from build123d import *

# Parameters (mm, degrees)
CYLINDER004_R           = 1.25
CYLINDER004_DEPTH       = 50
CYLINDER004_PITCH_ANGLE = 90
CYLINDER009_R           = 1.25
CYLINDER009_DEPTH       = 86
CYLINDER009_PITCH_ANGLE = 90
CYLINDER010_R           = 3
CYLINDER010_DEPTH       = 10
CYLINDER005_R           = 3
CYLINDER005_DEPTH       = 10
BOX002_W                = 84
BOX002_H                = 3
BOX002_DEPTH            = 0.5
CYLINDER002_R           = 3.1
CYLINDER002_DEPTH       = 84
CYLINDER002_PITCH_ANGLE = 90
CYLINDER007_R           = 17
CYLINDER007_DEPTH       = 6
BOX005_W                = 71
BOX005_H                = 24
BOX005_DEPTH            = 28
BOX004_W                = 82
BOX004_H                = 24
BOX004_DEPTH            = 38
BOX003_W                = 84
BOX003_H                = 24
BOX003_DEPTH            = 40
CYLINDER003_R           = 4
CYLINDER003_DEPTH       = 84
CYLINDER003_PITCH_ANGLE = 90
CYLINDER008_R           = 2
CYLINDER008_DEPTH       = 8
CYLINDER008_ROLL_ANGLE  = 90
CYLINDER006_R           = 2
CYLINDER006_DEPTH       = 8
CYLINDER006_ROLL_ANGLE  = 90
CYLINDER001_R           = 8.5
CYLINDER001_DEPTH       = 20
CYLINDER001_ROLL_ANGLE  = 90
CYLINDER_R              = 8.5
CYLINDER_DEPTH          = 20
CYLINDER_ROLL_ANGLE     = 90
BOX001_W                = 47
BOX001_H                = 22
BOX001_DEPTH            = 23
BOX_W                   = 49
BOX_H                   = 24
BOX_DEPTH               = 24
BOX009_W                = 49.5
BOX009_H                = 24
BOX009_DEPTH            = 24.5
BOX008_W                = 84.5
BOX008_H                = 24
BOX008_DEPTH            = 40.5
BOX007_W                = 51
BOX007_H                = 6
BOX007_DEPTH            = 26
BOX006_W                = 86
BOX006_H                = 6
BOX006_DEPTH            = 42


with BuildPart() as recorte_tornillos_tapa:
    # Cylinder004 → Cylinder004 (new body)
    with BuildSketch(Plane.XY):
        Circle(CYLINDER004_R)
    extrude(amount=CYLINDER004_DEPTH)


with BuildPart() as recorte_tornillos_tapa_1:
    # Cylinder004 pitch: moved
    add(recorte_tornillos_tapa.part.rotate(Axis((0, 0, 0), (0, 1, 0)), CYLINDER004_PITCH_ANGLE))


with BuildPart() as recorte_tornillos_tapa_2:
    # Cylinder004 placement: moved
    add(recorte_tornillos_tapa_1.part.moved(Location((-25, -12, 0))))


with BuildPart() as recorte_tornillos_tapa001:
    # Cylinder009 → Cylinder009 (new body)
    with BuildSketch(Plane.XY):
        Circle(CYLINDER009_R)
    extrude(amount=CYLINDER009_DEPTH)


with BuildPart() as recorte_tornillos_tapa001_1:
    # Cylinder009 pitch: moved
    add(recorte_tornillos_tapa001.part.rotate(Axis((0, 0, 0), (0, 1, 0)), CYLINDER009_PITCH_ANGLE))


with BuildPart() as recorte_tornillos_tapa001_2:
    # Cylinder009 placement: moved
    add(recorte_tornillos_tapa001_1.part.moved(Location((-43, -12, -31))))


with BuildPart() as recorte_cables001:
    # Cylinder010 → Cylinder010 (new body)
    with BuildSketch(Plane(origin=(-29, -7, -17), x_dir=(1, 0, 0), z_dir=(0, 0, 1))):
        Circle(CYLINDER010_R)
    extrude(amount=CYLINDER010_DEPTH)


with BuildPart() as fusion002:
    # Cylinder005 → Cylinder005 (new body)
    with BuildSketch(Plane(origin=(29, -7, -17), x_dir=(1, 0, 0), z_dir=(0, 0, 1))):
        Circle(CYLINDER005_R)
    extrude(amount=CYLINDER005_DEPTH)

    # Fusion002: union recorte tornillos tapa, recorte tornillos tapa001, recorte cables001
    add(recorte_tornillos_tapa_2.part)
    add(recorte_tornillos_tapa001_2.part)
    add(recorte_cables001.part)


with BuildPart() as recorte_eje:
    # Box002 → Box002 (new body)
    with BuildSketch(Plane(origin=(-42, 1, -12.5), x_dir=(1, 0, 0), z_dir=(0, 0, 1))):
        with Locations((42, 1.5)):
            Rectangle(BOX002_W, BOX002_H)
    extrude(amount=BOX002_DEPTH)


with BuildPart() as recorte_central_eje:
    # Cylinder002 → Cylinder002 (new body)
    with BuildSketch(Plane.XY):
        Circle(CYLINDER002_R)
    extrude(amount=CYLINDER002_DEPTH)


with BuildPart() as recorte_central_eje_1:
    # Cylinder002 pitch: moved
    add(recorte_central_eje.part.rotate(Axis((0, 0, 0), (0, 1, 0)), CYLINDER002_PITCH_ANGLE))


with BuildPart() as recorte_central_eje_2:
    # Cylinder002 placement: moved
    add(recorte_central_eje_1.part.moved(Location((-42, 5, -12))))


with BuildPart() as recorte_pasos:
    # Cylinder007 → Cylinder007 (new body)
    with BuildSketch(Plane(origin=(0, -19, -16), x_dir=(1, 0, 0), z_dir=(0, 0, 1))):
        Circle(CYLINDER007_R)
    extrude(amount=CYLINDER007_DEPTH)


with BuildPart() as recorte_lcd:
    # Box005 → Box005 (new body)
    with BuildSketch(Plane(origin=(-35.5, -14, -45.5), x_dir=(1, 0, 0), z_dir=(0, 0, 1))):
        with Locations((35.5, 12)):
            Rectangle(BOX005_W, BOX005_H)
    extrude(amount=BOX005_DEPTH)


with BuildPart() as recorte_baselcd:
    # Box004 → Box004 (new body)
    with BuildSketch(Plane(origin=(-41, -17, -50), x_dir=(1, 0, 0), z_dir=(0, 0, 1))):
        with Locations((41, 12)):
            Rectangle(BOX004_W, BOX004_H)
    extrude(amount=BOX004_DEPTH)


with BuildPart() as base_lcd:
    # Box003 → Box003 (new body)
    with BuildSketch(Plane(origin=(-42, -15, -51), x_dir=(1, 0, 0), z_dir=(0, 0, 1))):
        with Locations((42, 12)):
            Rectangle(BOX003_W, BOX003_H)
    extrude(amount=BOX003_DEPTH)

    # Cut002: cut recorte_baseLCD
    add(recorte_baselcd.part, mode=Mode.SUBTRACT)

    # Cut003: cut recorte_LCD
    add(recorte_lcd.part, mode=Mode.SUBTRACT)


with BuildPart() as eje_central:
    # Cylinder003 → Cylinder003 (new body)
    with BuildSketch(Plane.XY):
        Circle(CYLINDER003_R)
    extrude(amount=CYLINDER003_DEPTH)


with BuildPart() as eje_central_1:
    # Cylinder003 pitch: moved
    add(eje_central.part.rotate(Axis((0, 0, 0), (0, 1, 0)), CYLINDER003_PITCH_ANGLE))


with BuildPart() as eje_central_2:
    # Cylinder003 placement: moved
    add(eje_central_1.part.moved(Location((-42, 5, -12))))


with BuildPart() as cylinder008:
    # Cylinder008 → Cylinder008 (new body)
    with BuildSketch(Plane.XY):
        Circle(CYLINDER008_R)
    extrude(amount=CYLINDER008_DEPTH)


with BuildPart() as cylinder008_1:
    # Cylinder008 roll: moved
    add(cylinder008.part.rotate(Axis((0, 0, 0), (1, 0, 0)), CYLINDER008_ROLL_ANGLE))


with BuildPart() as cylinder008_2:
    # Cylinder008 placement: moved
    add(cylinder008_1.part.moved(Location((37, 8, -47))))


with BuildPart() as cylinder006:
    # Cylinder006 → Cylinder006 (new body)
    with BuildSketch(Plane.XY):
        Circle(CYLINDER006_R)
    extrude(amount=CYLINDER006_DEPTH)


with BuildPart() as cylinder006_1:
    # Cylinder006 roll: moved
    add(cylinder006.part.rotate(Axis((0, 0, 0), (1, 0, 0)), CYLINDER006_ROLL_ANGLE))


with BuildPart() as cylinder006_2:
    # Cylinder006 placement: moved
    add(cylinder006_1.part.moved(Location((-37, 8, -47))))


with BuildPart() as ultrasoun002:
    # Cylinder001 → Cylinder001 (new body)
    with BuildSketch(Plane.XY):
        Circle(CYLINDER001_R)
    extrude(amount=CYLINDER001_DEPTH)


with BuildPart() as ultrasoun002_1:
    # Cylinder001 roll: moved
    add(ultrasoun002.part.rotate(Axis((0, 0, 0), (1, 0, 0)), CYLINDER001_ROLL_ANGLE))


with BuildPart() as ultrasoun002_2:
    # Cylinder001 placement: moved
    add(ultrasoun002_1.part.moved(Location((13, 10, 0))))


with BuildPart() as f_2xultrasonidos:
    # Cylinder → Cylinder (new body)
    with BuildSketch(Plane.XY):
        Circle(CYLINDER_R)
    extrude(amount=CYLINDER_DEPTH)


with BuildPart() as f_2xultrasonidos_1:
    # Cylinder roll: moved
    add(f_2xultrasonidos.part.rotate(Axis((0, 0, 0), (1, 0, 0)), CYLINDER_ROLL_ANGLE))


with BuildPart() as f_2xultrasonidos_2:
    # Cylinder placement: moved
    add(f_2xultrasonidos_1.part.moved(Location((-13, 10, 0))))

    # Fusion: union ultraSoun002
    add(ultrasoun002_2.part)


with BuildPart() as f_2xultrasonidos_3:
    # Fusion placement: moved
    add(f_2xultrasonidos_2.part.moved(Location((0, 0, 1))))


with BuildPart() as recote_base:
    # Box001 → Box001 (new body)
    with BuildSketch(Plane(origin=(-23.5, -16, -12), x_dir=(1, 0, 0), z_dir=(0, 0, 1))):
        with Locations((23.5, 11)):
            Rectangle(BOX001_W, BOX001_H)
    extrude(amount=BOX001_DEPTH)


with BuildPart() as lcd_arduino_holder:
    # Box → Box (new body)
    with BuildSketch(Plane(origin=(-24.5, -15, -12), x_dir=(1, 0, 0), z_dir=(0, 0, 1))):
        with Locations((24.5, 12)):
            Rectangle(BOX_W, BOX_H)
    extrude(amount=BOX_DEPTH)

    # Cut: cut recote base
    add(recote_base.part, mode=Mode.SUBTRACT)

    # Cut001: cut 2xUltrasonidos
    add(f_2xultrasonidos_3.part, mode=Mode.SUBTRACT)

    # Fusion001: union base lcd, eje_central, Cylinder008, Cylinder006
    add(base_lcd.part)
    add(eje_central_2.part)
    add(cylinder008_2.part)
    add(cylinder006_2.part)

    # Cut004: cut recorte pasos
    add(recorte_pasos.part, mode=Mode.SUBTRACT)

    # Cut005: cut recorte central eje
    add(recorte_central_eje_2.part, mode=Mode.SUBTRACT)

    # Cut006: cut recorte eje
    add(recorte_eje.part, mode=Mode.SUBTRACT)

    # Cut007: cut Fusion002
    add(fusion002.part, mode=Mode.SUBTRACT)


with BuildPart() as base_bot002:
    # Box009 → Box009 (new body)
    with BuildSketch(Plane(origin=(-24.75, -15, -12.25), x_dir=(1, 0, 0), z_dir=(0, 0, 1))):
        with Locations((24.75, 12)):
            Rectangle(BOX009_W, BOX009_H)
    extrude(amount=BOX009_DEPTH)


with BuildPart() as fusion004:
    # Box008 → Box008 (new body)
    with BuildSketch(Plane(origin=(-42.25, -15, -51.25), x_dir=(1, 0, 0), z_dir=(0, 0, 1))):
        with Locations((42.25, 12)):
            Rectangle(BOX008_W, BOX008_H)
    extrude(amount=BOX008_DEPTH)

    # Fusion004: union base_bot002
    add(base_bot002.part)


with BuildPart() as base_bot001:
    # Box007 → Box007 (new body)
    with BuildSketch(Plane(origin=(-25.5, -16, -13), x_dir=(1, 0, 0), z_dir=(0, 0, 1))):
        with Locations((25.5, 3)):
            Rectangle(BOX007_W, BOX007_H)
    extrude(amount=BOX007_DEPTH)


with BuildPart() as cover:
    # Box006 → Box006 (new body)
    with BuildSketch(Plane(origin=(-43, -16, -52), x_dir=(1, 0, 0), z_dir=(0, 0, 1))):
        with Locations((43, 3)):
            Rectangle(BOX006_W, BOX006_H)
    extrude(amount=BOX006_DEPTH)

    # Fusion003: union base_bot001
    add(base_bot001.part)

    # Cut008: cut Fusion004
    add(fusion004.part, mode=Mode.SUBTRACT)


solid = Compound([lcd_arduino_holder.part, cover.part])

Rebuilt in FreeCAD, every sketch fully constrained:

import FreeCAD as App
import Part
import Sketcher

doc = App.newDocument("Part")
body = doc.addObject("PartDesign::Body", "Body")

sketch1 = body.newObject("Sketcher::SketchObject", "Sketch")
sketch1.AttachmentSupport = (doc.getObject("XY_Plane"), [""])
sketch1.MapMode = "FlatFace"
sketch1.addGeometry(Part.Circle(App.Vector(0, 0, 0), App.Vector(0, 0, 1), 1.25), False)
sketch1.addConstraint(Sketcher.Constraint("Coincident", 0, 3, -1, 1))
sketch1.addConstraint(Sketcher.Constraint("Diameter", 0, 2.5))
pad1 = body.newObject("PartDesign::Pad", "Pad")
pad1.Profile = sketch1
pad1.Length = 50
body2 = doc.addObject("PartDesign::Body", "Body001")
doc.recompute()

body.Placement = App.Placement(App.Vector(0, 0, 0), App.Rotation(App.Vector(0, 1, 0), 90))
boolean = body2.newObject("PartDesign::Boolean", "Boolean")
boolean.Type = "Fuse"
boolean.addObjects([body])
body3 = doc.addObject("PartDesign::Body", "Body002")
doc.recompute()

body2.Placement = App.Placement(App.Vector(-25, -12, 0), App.Rotation(App.Vector(0, 0, 1), 0))
boolean2 = body3.newObject("PartDesign::Boolean", "Boolean001")
boolean2.Type = "Fuse"
boolean2.addObjects([body2])
body4 = doc.addObject("PartDesign::Body", "Body003")

sketch2 = body4.newObject("Sketcher::SketchObject", "Sketch001")
sketch2.AttachmentSupport = (doc.getObject("XY_Plane003"), [""])
sketch2.MapMode = "FlatFace"
sketch2.addGeometry(Part.Circle(App.Vector(0, 0, 0), App.Vector(0, 0, 1), 1.25), False)
sketch2.addConstraint(Sketcher.Constraint("Coincident", 0, 3, -1, 1))
sketch2.addConstraint(Sketcher.Constraint("Diameter", 0, 2.5))
pad2 = body4.newObject("PartDesign::Pad", "Pad001")
pad2.Profile = sketch2
pad2.Length = 86
body5 = doc.addObject("PartDesign::Body", "Body004")
doc.recompute()

body4.Placement = App.Placement(App.Vector(0, 0, 0), App.Rotation(App.Vector(0, 1, 0), 90))
boolean3 = body5.newObject("PartDesign::Boolean", "Boolean002")
boolean3.Type = "Fuse"
boolean3.addObjects([body4])
body6 = doc.addObject("PartDesign::Body", "Body005")
doc.recompute()

body5.Placement = App.Placement(App.Vector(-43, -12, -31), App.Rotation(App.Vector(0, 0, 1), 0))
boolean4 = body6.newObject("PartDesign::Boolean", "Boolean003")
boolean4.Type = "Fuse"
boolean4.addObjects([body5])
body7 = doc.addObject("PartDesign::Body", "Body006")

sketch3 = body7.newObject("Sketcher::SketchObject", "Sketch002")
sketch3.AttachmentSupport = (doc.getObject("XY_Plane006"), [""])
sketch3.MapMode = "FlatFace"
sketch3.AttachmentOffset = App.Placement(App.Vector(0, 0, -17), App.Rotation())
sketch3.addGeometry(Part.Circle(App.Vector(-29, -7, 0), App.Vector(0, 0, 1), 3), False)
sketch3.addConstraint(Sketcher.Constraint("Diameter", 0, 6.0))
sketch3.addConstraint(Sketcher.Constraint("DistanceX", 0, 3, -1, 1, 29.0))
sketch3.addConstraint(Sketcher.Constraint("DistanceY", 0, 3, -1, 1, 7.0))
pad3 = body7.newObject("PartDesign::Pad", "Pad002")
pad3.Profile = sketch3
pad3.Length = 10
body8 = doc.addObject("PartDesign::Body", "Body007")
body8.AllowCompound = True

sketch4 = body8.newObject("Sketcher::SketchObject", "Sketch003")
sketch4.AttachmentSupport = (doc.getObject("XY_Plane007"), [""])
sketch4.MapMode = "FlatFace"
sketch4.AttachmentOffset = App.Placement(App.Vector(0, 0, -17), App.Rotation())
sketch4.addGeometry(Part.Circle(App.Vector(29, -7, 0), App.Vector(0, 0, 1), 3), False)
sketch4.addConstraint(Sketcher.Constraint("Diameter", 0, 6.0))
sketch4.addConstraint(Sketcher.Constraint("DistanceX", -1, 1, 0, 3, 29.0))
sketch4.addConstraint(Sketcher.Constraint("DistanceY", 0, 3, -1, 1, 7.0))
pad4 = body8.newObject("PartDesign::Pad", "Pad003")
pad4.Profile = sketch4
pad4.Length = 10
doc.recompute()

boolean5 = body8.newObject("PartDesign::Boolean", "Boolean004")
boolean5.Type = "Fuse"
boolean5.addObjects([body3])
doc.recompute()

boolean6 = body8.newObject("PartDesign::Boolean", "Boolean005")
boolean6.Type = "Fuse"
boolean6.addObjects([body6])
doc.recompute()

boolean7 = body8.newObject("PartDesign::Boolean", "Boolean006")
boolean7.Type = "Fuse"
boolean7.addObjects([body7])
body9 = doc.addObject("PartDesign::Body", "Body008")

sketch5 = body9.newObject("Sketcher::SketchObject", "Sketch004")
sketch5.AttachmentSupport = (doc.getObject("XY_Plane008"), [""])
sketch5.MapMode = "FlatFace"
sketch5.AttachmentOffset = App.Placement(App.Vector(0, 0, -12.5), App.Rotation())
sketch5.addGeometry(Part.LineSegment(App.Vector(-42, 4, 0), App.Vector(-42, 1, 0)), False)
sketch5.addGeometry(Part.LineSegment(App.Vector(-42, 1, 0), App.Vector(42, 1, 0)), False)
sketch5.addGeometry(Part.LineSegment(App.Vector(42, 1, 0), App.Vector(42, 4, 0)), False)
sketch5.addGeometry(Part.LineSegment(App.Vector(42, 4, 0), App.Vector(-42, 4, 0)), False)
sketch5.addConstraint(Sketcher.Constraint("Coincident", 0, 2, 1, 1))
sketch5.addConstraint(Sketcher.Constraint("Coincident", 1, 2, 2, 1))
sketch5.addConstraint(Sketcher.Constraint("Coincident", 2, 2, 3, 1))
sketch5.addConstraint(Sketcher.Constraint("Coincident", 3, 2, 0, 1))
sketch5.addConstraint(Sketcher.Constraint("Vertical", 0))
sketch5.addConstraint(Sketcher.Constraint("Horizontal", 1))
sketch5.addConstraint(Sketcher.Constraint("Vertical", 2))
sketch5.addConstraint(Sketcher.Constraint("Horizontal", 3))
sketch5.addConstraint(Sketcher.Constraint("DistanceX", 1, 1, 1, 2, 84.0))
sketch5.addConstraint(Sketcher.Constraint("DistanceY", 0, 2, 0, 1, 3.0))
sketch5.addConstraint(Sketcher.Constraint("DistanceX", 0, 2, -1, 1, 42.0))
sketch5.addConstraint(Sketcher.Constraint("DistanceY", -1, 1, 0, 2, 1.0))
pad5 = body9.newObject("PartDesign::Pad", "Pad004")
pad5.Profile = sketch5
pad5.Length = 0.5
body10 = doc.addObject("PartDesign::Body", "Body009")

sketch6 = body10.newObject("Sketcher::SketchObject", "Sketch005")
sketch6.AttachmentSupport = (doc.getObject("XY_Plane009"), [""])
sketch6.MapMode = "FlatFace"
sketch6.addGeometry(Part.Circle(App.Vector(0, 0, 0), App.Vector(0, 0, 1), 3.1), False)
sketch6.addConstraint(Sketcher.Constraint("Coincident", 0, 3, -1, 1))
sketch6.addConstraint(Sketcher.Constraint("Diameter", 0, 6.2))
pad6 = body10.newObject("PartDesign::Pad", "Pad005")
pad6.Profile = sketch6
pad6.Length = 84
body11 = doc.addObject("PartDesign::Body", "Body010")
doc.recompute()

body10.Placement = App.Placement(App.Vector(0, 0, 0), App.Rotation(App.Vector(0, 1, 0), 90))
boolean8 = body11.newObject("PartDesign::Boolean", "Boolean007")
boolean8.Type = "Fuse"
boolean8.addObjects([body10])
body12 = doc.addObject("PartDesign::Body", "Body011")
doc.recompute()

body11.Placement = App.Placement(App.Vector(-42, 5, -12), App.Rotation(App.Vector(0, 0, 1), 0))
boolean9 = body12.newObject("PartDesign::Boolean", "Boolean008")
boolean9.Type = "Fuse"
boolean9.addObjects([body11])
body13 = doc.addObject("PartDesign::Body", "Body012")

sketch7 = body13.newObject("Sketcher::SketchObject", "Sketch006")
sketch7.AttachmentSupport = (doc.getObject("XY_Plane012"), [""])
sketch7.MapMode = "FlatFace"
sketch7.AttachmentOffset = App.Placement(App.Vector(0, 0, -16), App.Rotation())
sketch7.addGeometry(Part.Circle(App.Vector(0, -19, 0), App.Vector(0, 0, 1), 17), False)
sketch7.addConstraint(Sketcher.Constraint("PointOnObject", 0, 3, -2))
sketch7.addConstraint(Sketcher.Constraint("Diameter", 0, 34.0))
sketch7.addConstraint(Sketcher.Constraint("DistanceY", 0, 3, -1, 1, 19.0))
pad7 = body13.newObject("PartDesign::Pad", "Pad006")
pad7.Profile = sketch7
pad7.Length = 6
body14 = doc.addObject("PartDesign::Body", "Body013")

sketch8 = body14.newObject("Sketcher::SketchObject", "Sketch007")
sketch8.AttachmentSupport = (doc.getObject("XY_Plane013"), [""])
sketch8.MapMode = "FlatFace"
sketch8.AttachmentOffset = App.Placement(App.Vector(0, 0, -45.5), App.Rotation())
sketch8.addGeometry(Part.LineSegment(App.Vector(-35.5, 10, 0), App.Vector(-35.5, -14, 0)), False)
sketch8.addGeometry(Part.LineSegment(App.Vector(-35.5, -14, 0), App.Vector(35.5, -14, 0)), False)
sketch8.addGeometry(Part.LineSegment(App.Vector(35.5, -14, 0), App.Vector(35.5, 10, 0)), False)
sketch8.addGeometry(Part.LineSegment(App.Vector(35.5, 10, 0), App.Vector(-35.5, 10, 0)), False)
sketch8.addConstraint(Sketcher.Constraint("Coincident", 0, 2, 1, 1))
sketch8.addConstraint(Sketcher.Constraint("Coincident", 1, 2, 2, 1))
sketch8.addConstraint(Sketcher.Constraint("Coincident", 2, 2, 3, 1))
sketch8.addConstraint(Sketcher.Constraint("Coincident", 3, 2, 0, 1))
sketch8.addConstraint(Sketcher.Constraint("Vertical", 0))
sketch8.addConstraint(Sketcher.Constraint("Horizontal", 1))
sketch8.addConstraint(Sketcher.Constraint("Vertical", 2))
sketch8.addConstraint(Sketcher.Constraint("Horizontal", 3))
sketch8.addConstraint(Sketcher.Constraint("DistanceX", 1, 1, 1, 2, 71.0))
sketch8.addConstraint(Sketcher.Constraint("DistanceY", 0, 2, 0, 1, 24.0))
sketch8.addConstraint(Sketcher.Constraint("DistanceY", 0, 2, -1, 1, 14.0))
sketch8.addConstraint(Sketcher.Constraint("DistanceX", 0, 2, -1, 1, 35.5))
pad8 = body14.newObject("PartDesign::Pad", "Pad007")
pad8.Profile = sketch8
pad8.Length = 28
body15 = doc.addObject("PartDesign::Body", "Body014")

sketch9 = body15.newObject("Sketcher::SketchObject", "Sketch008")
sketch9.AttachmentSupport = (doc.getObject("XY_Plane014"), [""])
sketch9.MapMode = "FlatFace"
sketch9.AttachmentOffset = App.Placement(App.Vector(0, 0, -50), App.Rotation())
sketch9.addGeometry(Part.LineSegment(App.Vector(-41, 7, 0), App.Vector(-41, -17, 0)), False)
sketch9.addGeometry(Part.LineSegment(App.Vector(-41, -17, 0), App.Vector(41, -17, 0)), False)
sketch9.addGeometry(Part.LineSegment(App.Vector(41, -17, 0), App.Vector(41, 7, 0)), False)
sketch9.addGeometry(Part.LineSegment(App.Vector(41, 7, 0), App.Vector(-41, 7, 0)), False)
sketch9.addConstraint(Sketcher.Constraint("Coincident", 0, 2, 1, 1))
sketch9.addConstraint(Sketcher.Constraint("Coincident", 1, 2, 2, 1))
sketch9.addConstraint(Sketcher.Constraint("Coincident", 2, 2, 3, 1))
sketch9.addConstraint(Sketcher.Constraint("Coincident", 3, 2, 0, 1))
sketch9.addConstraint(Sketcher.Constraint("Vertical", 0))
sketch9.addConstraint(Sketcher.Constraint("Horizontal", 1))
sketch9.addConstraint(Sketcher.Constraint("Vertical", 2))
sketch9.addConstraint(Sketcher.Constraint("Horizontal", 3))
sketch9.addConstraint(Sketcher.Constraint("DistanceX", 1, 1, 1, 2, 82.0))
sketch9.addConstraint(Sketcher.Constraint("DistanceY", 0, 2, 0, 1, 24.0))
sketch9.addConstraint(Sketcher.Constraint("DistanceX", 0, 2, -1, 1, 41.0))
sketch9.addConstraint(Sketcher.Constraint("DistanceY", 0, 2, -1, 1, 17.0))
pad9 = body15.newObject("PartDesign::Pad", "Pad008")
pad9.Profile = sketch9
pad9.Length = 38
body16 = doc.addObject("PartDesign::Body", "Body015")

sketch10 = body16.newObject("Sketcher::SketchObject", "Sketch009")
sketch10.AttachmentSupport = (doc.getObject("XY_Plane015"), [""])
sketch10.MapMode = "FlatFace"
sketch10.AttachmentOffset = App.Placement(App.Vector(0, 0, -51), App.Rotation())
sketch10.addGeometry(Part.LineSegment(App.Vector(-42, 9, 0), App.Vector(-42, -15, 0)), False)
sketch10.addGeometry(Part.LineSegment(App.Vector(-42, -15, 0), App.Vector(42, -15, 0)), False)
sketch10.addGeometry(Part.LineSegment(App.Vector(42, -15, 0), App.Vector(42, 9, 0)), False)
sketch10.addGeometry(Part.LineSegment(App.Vector(42, 9, 0), App.Vector(-42, 9, 0)), False)
sketch10.addConstraint(Sketcher.Constraint("Coincident", 0, 2, 1, 1))
sketch10.addConstraint(Sketcher.Constraint("Coincident", 1, 2, 2, 1))
sketch10.addConstraint(Sketcher.Constraint("Coincident", 2, 2, 3, 1))
sketch10.addConstraint(Sketcher.Constraint("Coincident", 3, 2, 0, 1))
sketch10.addConstraint(Sketcher.Constraint("Vertical", 0))
sketch10.addConstraint(Sketcher.Constraint("Horizontal", 1))
sketch10.addConstraint(Sketcher.Constraint("Vertical", 2))
sketch10.addConstraint(Sketcher.Constraint("Horizontal", 3))
sketch10.addConstraint(Sketcher.Constraint("DistanceX", 1, 1, 1, 2, 84.0))
sketch10.addConstraint(Sketcher.Constraint("DistanceY", 0, 2, 0, 1, 24.0))
sketch10.addConstraint(Sketcher.Constraint("DistanceX", 0, 2, -1, 1, 42.0))
sketch10.addConstraint(Sketcher.Constraint("DistanceY", 0, 2, -1, 1, 15.0))
pad10 = body16.newObject("PartDesign::Pad", "Pad009")
pad10.Profile = sketch10
pad10.Length = 40
doc.recompute()

boolean10 = body16.newObject("PartDesign::Boolean", "Boolean009")
boolean10.Type = "Cut"
boolean10.addObjects([body15])
doc.recompute()

boolean11 = body16.newObject("PartDesign::Boolean", "Boolean010")
boolean11.Type = "Cut"
boolean11.addObjects([body14])
body17 = doc.addObject("PartDesign::Body", "Body016")

sketch11 = body17.newObject("Sketcher::SketchObject", "Sketch010")
sketch11.AttachmentSupport = (doc.getObject("XY_Plane016"), [""])
sketch11.MapMode = "FlatFace"
sketch11.addGeometry(Part.Circle(App.Vector(0, 0, 0), App.Vector(0, 0, 1), 4), False)
sketch11.addConstraint(Sketcher.Constraint("Coincident", 0, 3, -1, 1))
sketch11.addConstraint(Sketcher.Constraint("Diameter", 0, 8.0))
pad11 = body17.newObject("PartDesign::Pad", "Pad010")
pad11.Profile = sketch11
pad11.Length = 84
body18 = doc.addObject("PartDesign::Body", "Body017")
doc.recompute()

body17.Placement = App.Placement(App.Vector(0, 0, 0), App.Rotation(App.Vector(0, 1, 0), 90))
boolean12 = body18.newObject("PartDesign::Boolean", "Boolean011")
boolean12.Type = "Fuse"
boolean12.addObjects([body17])
body19 = doc.addObject("PartDesign::Body", "Body018")
doc.recompute()

body18.Placement = App.Placement(App.Vector(-42, 5, -12), App.Rotation(App.Vector(0, 0, 1), 0))
boolean13 = body19.newObject("PartDesign::Boolean", "Boolean012")
boolean13.Type = "Fuse"
boolean13.addObjects([body18])
body20 = doc.addObject("PartDesign::Body", "Body019")

sketch12 = body20.newObject("Sketcher::SketchObject", "Sketch011")
sketch12.AttachmentSupport = (doc.getObject("XY_Plane019"), [""])
sketch12.MapMode = "FlatFace"
sketch12.addGeometry(Part.Circle(App.Vector(0, 0, 0), App.Vector(0, 0, 1), 2), False)
sketch12.addConstraint(Sketcher.Constraint("Coincident", 0, 3, -1, 1))
sketch12.addConstraint(Sketcher.Constraint("Diameter", 0, 4.0))
pad12 = body20.newObject("PartDesign::Pad", "Pad011")
pad12.Profile = sketch12
pad12.Length = 8
body21 = doc.addObject("PartDesign::Body", "Body020")
doc.recompute()

body20.Placement = App.Placement(App.Vector(0, 0, 0), App.Rotation(App.Vector(1, 0, 0), 90))
boolean14 = body21.newObject("PartDesign::Boolean", "Boolean013")
boolean14.Type = "Fuse"
boolean14.addObjects([body20])
body22 = doc.addObject("PartDesign::Body", "Body021")
doc.recompute()

body21.Placement = App.Placement(App.Vector(37, 8, -47), App.Rotation(App.Vector(0, 0, 1), 0))
boolean15 = body22.newObject("PartDesign::Boolean", "Boolean014")
boolean15.Type = "Fuse"
boolean15.addObjects([body21])
body23 = doc.addObject("PartDesign::Body", "Body022")

sketch13 = body23.newObject("Sketcher::SketchObject", "Sketch012")
sketch13.AttachmentSupport = (doc.getObject("XY_Plane022"), [""])
sketch13.MapMode = "FlatFace"
sketch13.addGeometry(Part.Circle(App.Vector(0, 0, 0), App.Vector(0, 0, 1), 2), False)
sketch13.addConstraint(Sketcher.Constraint("Coincident", 0, 3, -1, 1))
sketch13.addConstraint(Sketcher.Constraint("Diameter", 0, 4.0))
pad13 = body23.newObject("PartDesign::Pad", "Pad012")
pad13.Profile = sketch13
pad13.Length = 8
body24 = doc.addObject("PartDesign::Body", "Body023")
doc.recompute()

body23.Placement = App.Placement(App.Vector(0, 0, 0), App.Rotation(App.Vector(1, 0, 0), 90))
boolean16 = body24.newObject("PartDesign::Boolean", "Boolean015")
boolean16.Type = "Fuse"
boolean16.addObjects([body23])
body25 = doc.addObject("PartDesign::Body", "Body024")
doc.recompute()

body24.Placement = App.Placement(App.Vector(-37, 8, -47), App.Rotation(App.Vector(0, 0, 1), 0))
boolean17 = body25.newObject("PartDesign::Boolean", "Boolean016")
boolean17.Type = "Fuse"
boolean17.addObjects([body24])
body26 = doc.addObject("PartDesign::Body", "Body025")

sketch14 = body26.newObject("Sketcher::SketchObject", "Sketch013")
sketch14.AttachmentSupport = (doc.getObject("XY_Plane025"), [""])
sketch14.MapMode = "FlatFace"
sketch14.addGeometry(Part.Circle(App.Vector(0, 0, 0), App.Vector(0, 0, 1), 8.5), False)
sketch14.addConstraint(Sketcher.Constraint("Coincident", 0, 3, -1, 1))
sketch14.addConstraint(Sketcher.Constraint("Diameter", 0, 17.0))
pad14 = body26.newObject("PartDesign::Pad", "Pad013")
pad14.Profile = sketch14
pad14.Length = 20
body27 = doc.addObject("PartDesign::Body", "Body026")
doc.recompute()

body26.Placement = App.Placement(App.Vector(0, 0, 0), App.Rotation(App.Vector(1, 0, 0), 90))
boolean18 = body27.newObject("PartDesign::Boolean", "Boolean017")
boolean18.Type = "Fuse"
boolean18.addObjects([body26])
body28 = doc.addObject("PartDesign::Body", "Body027")
doc.recompute()

body27.Placement = App.Placement(App.Vector(13, 10, 0), App.Rotation(App.Vector(0, 0, 1), 0))
boolean19 = body28.newObject("PartDesign::Boolean", "Boolean018")
boolean19.Type = "Fuse"
boolean19.addObjects([body27])
body29 = doc.addObject("PartDesign::Body", "Body028")

sketch15 = body29.newObject("Sketcher::SketchObject", "Sketch014")
sketch15.AttachmentSupport = (doc.getObject("XY_Plane028"), [""])
sketch15.MapMode = "FlatFace"
sketch15.addGeometry(Part.Circle(App.Vector(0, 0, 0), App.Vector(0, 0, 1), 8.5), False)
sketch15.addConstraint(Sketcher.Constraint("Coincident", 0, 3, -1, 1))
sketch15.addConstraint(Sketcher.Constraint("Diameter", 0, 17.0))
pad15 = body29.newObject("PartDesign::Pad", "Pad014")
pad15.Profile = sketch15
pad15.Length = 20
body30 = doc.addObject("PartDesign::Body", "Body029")
doc.recompute()

body29.Placement = App.Placement(App.Vector(0, 0, 0), App.Rotation(App.Vector(1, 0, 0), 90))
boolean20 = body30.newObject("PartDesign::Boolean", "Boolean019")
boolean20.Type = "Fuse"
boolean20.addObjects([body29])
body31 = doc.addObject("PartDesign::Body", "Body030")
body31.AllowCompound = True
doc.recompute()

body30.Placement = App.Placement(App.Vector(-13, 10, 0), App.Rotation(App.Vector(0, 0, 1), 0))
boolean21 = body31.newObject("PartDesign::Boolean", "Boolean020")
boolean21.Type = "Fuse"
boolean21.addObjects([body30])
doc.recompute()

boolean22 = body31.newObject("PartDesign::Boolean", "Boolean021")
boolean22.Type = "Fuse"
boolean22.addObjects([body28])
body32 = doc.addObject("PartDesign::Body", "Body031")
body32.AllowCompound = True
doc.recompute()

body31.Placement = App.Placement(App.Vector(0, 0, 1), App.Rotation(App.Vector(0, 0, 1), 0))
boolean23 = body32.newObject("PartDesign::Boolean", "Boolean022")
boolean23.Type = "Fuse"
boolean23.addObjects([body31])
body33 = doc.addObject("PartDesign::Body", "Body032")

sketch16 = body33.newObject("Sketcher::SketchObject", "Sketch015")
sketch16.AttachmentSupport = (doc.getObject("XY_Plane032"), [""])
sketch16.MapMode = "FlatFace"
sketch16.AttachmentOffset = App.Placement(App.Vector(0, 0, -12), App.Rotation())
sketch16.addGeometry(Part.LineSegment(App.Vector(-23.5, 6, 0), App.Vector(-23.5, -16, 0)), False)
sketch16.addGeometry(Part.LineSegment(App.Vector(-23.5, -16, 0), App.Vector(23.5, -16, 0)), False)
sketch16.addGeometry(Part.LineSegment(App.Vector(23.5, -16, 0), App.Vector(23.5, 6, 0)), False)
sketch16.addGeometry(Part.LineSegment(App.Vector(23.5, 6, 0), App.Vector(-23.5, 6, 0)), False)
sketch16.addConstraint(Sketcher.Constraint("Coincident", 0, 2, 1, 1))
sketch16.addConstraint(Sketcher.Constraint("Coincident", 1, 2, 2, 1))
sketch16.addConstraint(Sketcher.Constraint("Coincident", 2, 2, 3, 1))
sketch16.addConstraint(Sketcher.Constraint("Coincident", 3, 2, 0, 1))
sketch16.addConstraint(Sketcher.Constraint("Vertical", 0))
sketch16.addConstraint(Sketcher.Constraint("Horizontal", 1))
sketch16.addConstraint(Sketcher.Constraint("Vertical", 2))
sketch16.addConstraint(Sketcher.Constraint("Horizontal", 3))
sketch16.addConstraint(Sketcher.Constraint("DistanceX", 1, 1, 1, 2, 47.0))
sketch16.addConstraint(Sketcher.Constraint("DistanceY", 0, 2, 0, 1, 22.0))
sketch16.addConstraint(Sketcher.Constraint("DistanceY", 0, 2, -1, 1, 16.0))
sketch16.addConstraint(Sketcher.Constraint("DistanceX", 0, 2, -1, 1, 23.5))
pad16 = body33.newObject("PartDesign::Pad", "Pad015")
pad16.Profile = sketch16
pad16.Length = 23
body34 = doc.addObject("PartDesign::Body", "Body033")

sketch17 = body34.newObject("Sketcher::SketchObject", "Sketch016")
sketch17.AttachmentSupport = (doc.getObject("XY_Plane033"), [""])
sketch17.MapMode = "FlatFace"
sketch17.AttachmentOffset = App.Placement(App.Vector(0, 0, -12), App.Rotation())
sketch17.addGeometry(Part.LineSegment(App.Vector(-24.5, 9, 0), App.Vector(-24.5, -15, 0)), False)
sketch17.addGeometry(Part.LineSegment(App.Vector(-24.5, -15, 0), App.Vector(24.5, -15, 0)), False)
sketch17.addGeometry(Part.LineSegment(App.Vector(24.5, -15, 0), App.Vector(24.5, 9, 0)), False)
sketch17.addGeometry(Part.LineSegment(App.Vector(24.5, 9, 0), App.Vector(-24.5, 9, 0)), False)
sketch17.addConstraint(Sketcher.Constraint("Coincident", 0, 2, 1, 1))
sketch17.addConstraint(Sketcher.Constraint("Coincident", 1, 2, 2, 1))
sketch17.addConstraint(Sketcher.Constraint("Coincident", 2, 2, 3, 1))
sketch17.addConstraint(Sketcher.Constraint("Coincident", 3, 2, 0, 1))
sketch17.addConstraint(Sketcher.Constraint("Vertical", 0))
sketch17.addConstraint(Sketcher.Constraint("Horizontal", 1))
sketch17.addConstraint(Sketcher.Constraint("Vertical", 2))
sketch17.addConstraint(Sketcher.Constraint("Horizontal", 3))
sketch17.addConstraint(Sketcher.Constraint("DistanceX", 1, 1, 1, 2, 49.0))
sketch17.addConstraint(Sketcher.Constraint("DistanceY", 0, 2, 0, 1, 24.0))
sketch17.addConstraint(Sketcher.Constraint("DistanceY", 0, 2, -1, 1, 15.0))
sketch17.addConstraint(Sketcher.Constraint("DistanceX", 0, 2, -1, 1, 24.5))
pad17 = body34.newObject("PartDesign::Pad", "Pad016")
pad17.Profile = sketch17
pad17.Length = 24
doc.recompute()

boolean24 = body34.newObject("PartDesign::Boolean", "Boolean023")
boolean24.Type = "Cut"
boolean24.addObjects([body33])
doc.recompute()

boolean25 = body34.newObject("PartDesign::Boolean", "Boolean024")
boolean25.Type = "Cut"
boolean25.addObjects([body32])
doc.recompute()

boolean26 = body34.newObject("PartDesign::Boolean", "Boolean025")
boolean26.Type = "Fuse"
boolean26.addObjects([body16])
doc.recompute()

boolean27 = body34.newObject("PartDesign::Boolean", "Boolean026")
boolean27.Type = "Fuse"
boolean27.addObjects([body19])
doc.recompute()

boolean28 = body34.newObject("PartDesign::Boolean", "Boolean027")
boolean28.Type = "Fuse"
boolean28.addObjects([body22])
doc.recompute()

boolean29 = body34.newObject("PartDesign::Boolean", "Boolean028")
boolean29.Type = "Fuse"
boolean29.addObjects([body25])
doc.recompute()

boolean30 = body34.newObject("PartDesign::Boolean", "Boolean029")
boolean30.Type = "Cut"
boolean30.addObjects([body13])
doc.recompute()

boolean31 = body34.newObject("PartDesign::Boolean", "Boolean030")
boolean31.Type = "Cut"
boolean31.addObjects([body12])
doc.recompute()

boolean32 = body34.newObject("PartDesign::Boolean", "Boolean031")
boolean32.Type = "Cut"
boolean32.addObjects([body9])
doc.recompute()

boolean33 = body34.newObject("PartDesign::Boolean", "Boolean032")
boolean33.Type = "Cut"
boolean33.addObjects([body8])
body35 = doc.addObject("PartDesign::Body", "Body034")

sketch18 = body35.newObject("Sketcher::SketchObject", "Sketch017")
sketch18.AttachmentSupport = (doc.getObject("XY_Plane034"), [""])
sketch18.MapMode = "FlatFace"
sketch18.AttachmentOffset = App.Placement(App.Vector(0, 0, -12.25), App.Rotation())
sketch18.addGeometry(Part.LineSegment(App.Vector(-24.75, 9, 0), App.Vector(-24.75, -15, 0)), False)
sketch18.addGeometry(Part.LineSegment(App.Vector(-24.75, -15, 0), App.Vector(24.75, -15, 0)), False)
sketch18.addGeometry(Part.LineSegment(App.Vector(24.75, -15, 0), App.Vector(24.75, 9, 0)), False)
sketch18.addGeometry(Part.LineSegment(App.Vector(24.75, 9, 0), App.Vector(-24.75, 9, 0)), False)
sketch18.addConstraint(Sketcher.Constraint("Coincident", 0, 2, 1, 1))
sketch18.addConstraint(Sketcher.Constraint("Coincident", 1, 2, 2, 1))
sketch18.addConstraint(Sketcher.Constraint("Coincident", 2, 2, 3, 1))
sketch18.addConstraint(Sketcher.Constraint("Coincident", 3, 2, 0, 1))
sketch18.addConstraint(Sketcher.Constraint("Vertical", 0))
sketch18.addConstraint(Sketcher.Constraint("Horizontal", 1))
sketch18.addConstraint(Sketcher.Constraint("Vertical", 2))
sketch18.addConstraint(Sketcher.Constraint("Horizontal", 3))
sketch18.addConstraint(Sketcher.Constraint("DistanceY", 0, 2, 0, 1, 24.0))
sketch18.addConstraint(Sketcher.Constraint("DistanceX", 1, 1, 1, 2, 49.5))
sketch18.addConstraint(Sketcher.Constraint("DistanceY", 0, 2, -1, 1, 15.0))
sketch18.addConstraint(Sketcher.Constraint("DistanceX", 0, 2, -1, 1, 24.75))
pad18 = body35.newObject("PartDesign::Pad", "Pad017")
pad18.Profile = sketch18
pad18.Length = 24.5
body36 = doc.addObject("PartDesign::Body", "Body035")

sketch19 = body36.newObject("Sketcher::SketchObject", "Sketch018")
sketch19.AttachmentSupport = (doc.getObject("XY_Plane035"), [""])
sketch19.MapMode = "FlatFace"
sketch19.AttachmentOffset = App.Placement(App.Vector(0, 0, -51.25), App.Rotation())
sketch19.addGeometry(Part.LineSegment(App.Vector(-42.25, 9, 0), App.Vector(-42.25, -15, 0)), False)
sketch19.addGeometry(Part.LineSegment(App.Vector(-42.25, -15, 0), App.Vector(42.25, -15, 0)), False)
sketch19.addGeometry(Part.LineSegment(App.Vector(42.25, -15, 0), App.Vector(42.25, 9, 0)), False)
sketch19.addGeometry(Part.LineSegment(App.Vector(42.25, 9, 0), App.Vector(-42.25, 9, 0)), False)
sketch19.addConstraint(Sketcher.Constraint("Coincident", 0, 2, 1, 1))
sketch19.addConstraint(Sketcher.Constraint("Coincident", 1, 2, 2, 1))
sketch19.addConstraint(Sketcher.Constraint("Coincident", 2, 2, 3, 1))
sketch19.addConstraint(Sketcher.Constraint("Coincident", 3, 2, 0, 1))
sketch19.addConstraint(Sketcher.Constraint("Vertical", 0))
sketch19.addConstraint(Sketcher.Constraint("Horizontal", 1))
sketch19.addConstraint(Sketcher.Constraint("Vertical", 2))
sketch19.addConstraint(Sketcher.Constraint("Horizontal", 3))
sketch19.addConstraint(Sketcher.Constraint("DistanceY", 0, 2, 0, 1, 24.0))
sketch19.addConstraint(Sketcher.Constraint("DistanceX", 1, 1, 1, 2, 84.5))
sketch19.addConstraint(Sketcher.Constraint("DistanceY", 0, 2, -1, 1, 15.0))
sketch19.addConstraint(Sketcher.Constraint("DistanceX", 0, 2, -1, 1, 42.25))
pad19 = body36.newObject("PartDesign::Pad", "Pad018")
pad19.Profile = sketch19
pad19.Length = 40.5
doc.recompute()

boolean34 = body36.newObject("PartDesign::Boolean", "Boolean033")
boolean34.Type = "Fuse"
boolean34.addObjects([body35])
body37 = doc.addObject("PartDesign::Body", "Body036")

sketch20 = body37.newObject("Sketcher::SketchObject", "Sketch019")
sketch20.AttachmentSupport = (doc.getObject("XY_Plane036"), [""])
sketch20.MapMode = "FlatFace"
sketch20.AttachmentOffset = App.Placement(App.Vector(0, 0, -13), App.Rotation())
sketch20.addGeometry(Part.LineSegment(App.Vector(-25.5, -10, 0), App.Vector(-25.5, -16, 0)), False)
sketch20.addGeometry(Part.LineSegment(App.Vector(-25.5, -16, 0), App.Vector(25.5, -16, 0)), False)
sketch20.addGeometry(Part.LineSegment(App.Vector(25.5, -16, 0), App.Vector(25.5, -10, 0)), False)
sketch20.addGeometry(Part.LineSegment(App.Vector(25.5, -10, 0), App.Vector(-25.5, -10, 0)), False)
sketch20.addConstraint(Sketcher.Constraint("Coincident", 0, 2, 1, 1))
sketch20.addConstraint(Sketcher.Constraint("Coincident", 1, 2, 2, 1))
sketch20.addConstraint(Sketcher.Constraint("Coincident", 2, 2, 3, 1))
sketch20.addConstraint(Sketcher.Constraint("Coincident", 3, 2, 0, 1))
sketch20.addConstraint(Sketcher.Constraint("Vertical", 0))
sketch20.addConstraint(Sketcher.Constraint("Horizontal", 1))
sketch20.addConstraint(Sketcher.Constraint("Vertical", 2))
sketch20.addConstraint(Sketcher.Constraint("Horizontal", 3))
sketch20.addConstraint(Sketcher.Constraint("DistanceX", 1, 1, 1, 2, 51.0))
sketch20.addConstraint(Sketcher.Constraint("DistanceY", 0, 2, 0, 1, 6.0))
sketch20.addConstraint(Sketcher.Constraint("DistanceY", 0, 2, -1, 1, 16.0))
sketch20.addConstraint(Sketcher.Constraint("DistanceX", 0, 2, -1, 1, 25.5))
pad20 = body37.newObject("PartDesign::Pad", "Pad019")
pad20.Profile = sketch20
pad20.Length = 26
body38 = doc.addObject("PartDesign::Body", "Body037")

sketch21 = body38.newObject("Sketcher::SketchObject", "Sketch020")
sketch21.AttachmentSupport = (doc.getObject("XY_Plane037"), [""])
sketch21.MapMode = "FlatFace"
sketch21.AttachmentOffset = App.Placement(App.Vector(0, 0, -52), App.Rotation())
sketch21.addGeometry(Part.LineSegment(App.Vector(-43, -10, 0), App.Vector(-43, -16, 0)), False)
sketch21.addGeometry(Part.LineSegment(App.Vector(-43, -16, 0), App.Vector(43, -16, 0)), False)
sketch21.addGeometry(Part.LineSegment(App.Vector(43, -16, 0), App.Vector(43, -10, 0)), False)
sketch21.addGeometry(Part.LineSegment(App.Vector(43, -10, 0), App.Vector(-43, -10, 0)), False)
sketch21.addConstraint(Sketcher.Constraint("Coincident", 0, 2, 1, 1))
sketch21.addConstraint(Sketcher.Constraint("Coincident", 1, 2, 2, 1))
sketch21.addConstraint(Sketcher.Constraint("Coincident", 2, 2, 3, 1))
sketch21.addConstraint(Sketcher.Constraint("Coincident", 3, 2, 0, 1))
sketch21.addConstraint(Sketcher.Constraint("Vertical", 0))
sketch21.addConstraint(Sketcher.Constraint("Horizontal", 1))
sketch21.addConstraint(Sketcher.Constraint("Vertical", 2))
sketch21.addConstraint(Sketcher.Constraint("Horizontal", 3))
sketch21.addConstraint(Sketcher.Constraint("DistanceX", 1, 1, 1, 2, 86.0))
sketch21.addConstraint(Sketcher.Constraint("DistanceY", 0, 2, 0, 1, 6.0))
sketch21.addConstraint(Sketcher.Constraint("DistanceX", 0, 2, -1, 1, 43.0))
sketch21.addConstraint(Sketcher.Constraint("DistanceY", 0, 2, -1, 1, 16.0))
pad21 = body38.newObject("PartDesign::Pad", "Pad020")
pad21.Profile = sketch21
pad21.Length = 42
doc.recompute()

boolean35 = body38.newObject("PartDesign::Boolean", "Boolean034")
boolean35.Type = "Fuse"
boolean35.addObjects([body37])
doc.recompute()

boolean36 = body38.newObject("PartDesign::Boolean", "Boolean035")
boolean36.Type = "Cut"
boolean36.addObjects([body36])

doc.recompute()
